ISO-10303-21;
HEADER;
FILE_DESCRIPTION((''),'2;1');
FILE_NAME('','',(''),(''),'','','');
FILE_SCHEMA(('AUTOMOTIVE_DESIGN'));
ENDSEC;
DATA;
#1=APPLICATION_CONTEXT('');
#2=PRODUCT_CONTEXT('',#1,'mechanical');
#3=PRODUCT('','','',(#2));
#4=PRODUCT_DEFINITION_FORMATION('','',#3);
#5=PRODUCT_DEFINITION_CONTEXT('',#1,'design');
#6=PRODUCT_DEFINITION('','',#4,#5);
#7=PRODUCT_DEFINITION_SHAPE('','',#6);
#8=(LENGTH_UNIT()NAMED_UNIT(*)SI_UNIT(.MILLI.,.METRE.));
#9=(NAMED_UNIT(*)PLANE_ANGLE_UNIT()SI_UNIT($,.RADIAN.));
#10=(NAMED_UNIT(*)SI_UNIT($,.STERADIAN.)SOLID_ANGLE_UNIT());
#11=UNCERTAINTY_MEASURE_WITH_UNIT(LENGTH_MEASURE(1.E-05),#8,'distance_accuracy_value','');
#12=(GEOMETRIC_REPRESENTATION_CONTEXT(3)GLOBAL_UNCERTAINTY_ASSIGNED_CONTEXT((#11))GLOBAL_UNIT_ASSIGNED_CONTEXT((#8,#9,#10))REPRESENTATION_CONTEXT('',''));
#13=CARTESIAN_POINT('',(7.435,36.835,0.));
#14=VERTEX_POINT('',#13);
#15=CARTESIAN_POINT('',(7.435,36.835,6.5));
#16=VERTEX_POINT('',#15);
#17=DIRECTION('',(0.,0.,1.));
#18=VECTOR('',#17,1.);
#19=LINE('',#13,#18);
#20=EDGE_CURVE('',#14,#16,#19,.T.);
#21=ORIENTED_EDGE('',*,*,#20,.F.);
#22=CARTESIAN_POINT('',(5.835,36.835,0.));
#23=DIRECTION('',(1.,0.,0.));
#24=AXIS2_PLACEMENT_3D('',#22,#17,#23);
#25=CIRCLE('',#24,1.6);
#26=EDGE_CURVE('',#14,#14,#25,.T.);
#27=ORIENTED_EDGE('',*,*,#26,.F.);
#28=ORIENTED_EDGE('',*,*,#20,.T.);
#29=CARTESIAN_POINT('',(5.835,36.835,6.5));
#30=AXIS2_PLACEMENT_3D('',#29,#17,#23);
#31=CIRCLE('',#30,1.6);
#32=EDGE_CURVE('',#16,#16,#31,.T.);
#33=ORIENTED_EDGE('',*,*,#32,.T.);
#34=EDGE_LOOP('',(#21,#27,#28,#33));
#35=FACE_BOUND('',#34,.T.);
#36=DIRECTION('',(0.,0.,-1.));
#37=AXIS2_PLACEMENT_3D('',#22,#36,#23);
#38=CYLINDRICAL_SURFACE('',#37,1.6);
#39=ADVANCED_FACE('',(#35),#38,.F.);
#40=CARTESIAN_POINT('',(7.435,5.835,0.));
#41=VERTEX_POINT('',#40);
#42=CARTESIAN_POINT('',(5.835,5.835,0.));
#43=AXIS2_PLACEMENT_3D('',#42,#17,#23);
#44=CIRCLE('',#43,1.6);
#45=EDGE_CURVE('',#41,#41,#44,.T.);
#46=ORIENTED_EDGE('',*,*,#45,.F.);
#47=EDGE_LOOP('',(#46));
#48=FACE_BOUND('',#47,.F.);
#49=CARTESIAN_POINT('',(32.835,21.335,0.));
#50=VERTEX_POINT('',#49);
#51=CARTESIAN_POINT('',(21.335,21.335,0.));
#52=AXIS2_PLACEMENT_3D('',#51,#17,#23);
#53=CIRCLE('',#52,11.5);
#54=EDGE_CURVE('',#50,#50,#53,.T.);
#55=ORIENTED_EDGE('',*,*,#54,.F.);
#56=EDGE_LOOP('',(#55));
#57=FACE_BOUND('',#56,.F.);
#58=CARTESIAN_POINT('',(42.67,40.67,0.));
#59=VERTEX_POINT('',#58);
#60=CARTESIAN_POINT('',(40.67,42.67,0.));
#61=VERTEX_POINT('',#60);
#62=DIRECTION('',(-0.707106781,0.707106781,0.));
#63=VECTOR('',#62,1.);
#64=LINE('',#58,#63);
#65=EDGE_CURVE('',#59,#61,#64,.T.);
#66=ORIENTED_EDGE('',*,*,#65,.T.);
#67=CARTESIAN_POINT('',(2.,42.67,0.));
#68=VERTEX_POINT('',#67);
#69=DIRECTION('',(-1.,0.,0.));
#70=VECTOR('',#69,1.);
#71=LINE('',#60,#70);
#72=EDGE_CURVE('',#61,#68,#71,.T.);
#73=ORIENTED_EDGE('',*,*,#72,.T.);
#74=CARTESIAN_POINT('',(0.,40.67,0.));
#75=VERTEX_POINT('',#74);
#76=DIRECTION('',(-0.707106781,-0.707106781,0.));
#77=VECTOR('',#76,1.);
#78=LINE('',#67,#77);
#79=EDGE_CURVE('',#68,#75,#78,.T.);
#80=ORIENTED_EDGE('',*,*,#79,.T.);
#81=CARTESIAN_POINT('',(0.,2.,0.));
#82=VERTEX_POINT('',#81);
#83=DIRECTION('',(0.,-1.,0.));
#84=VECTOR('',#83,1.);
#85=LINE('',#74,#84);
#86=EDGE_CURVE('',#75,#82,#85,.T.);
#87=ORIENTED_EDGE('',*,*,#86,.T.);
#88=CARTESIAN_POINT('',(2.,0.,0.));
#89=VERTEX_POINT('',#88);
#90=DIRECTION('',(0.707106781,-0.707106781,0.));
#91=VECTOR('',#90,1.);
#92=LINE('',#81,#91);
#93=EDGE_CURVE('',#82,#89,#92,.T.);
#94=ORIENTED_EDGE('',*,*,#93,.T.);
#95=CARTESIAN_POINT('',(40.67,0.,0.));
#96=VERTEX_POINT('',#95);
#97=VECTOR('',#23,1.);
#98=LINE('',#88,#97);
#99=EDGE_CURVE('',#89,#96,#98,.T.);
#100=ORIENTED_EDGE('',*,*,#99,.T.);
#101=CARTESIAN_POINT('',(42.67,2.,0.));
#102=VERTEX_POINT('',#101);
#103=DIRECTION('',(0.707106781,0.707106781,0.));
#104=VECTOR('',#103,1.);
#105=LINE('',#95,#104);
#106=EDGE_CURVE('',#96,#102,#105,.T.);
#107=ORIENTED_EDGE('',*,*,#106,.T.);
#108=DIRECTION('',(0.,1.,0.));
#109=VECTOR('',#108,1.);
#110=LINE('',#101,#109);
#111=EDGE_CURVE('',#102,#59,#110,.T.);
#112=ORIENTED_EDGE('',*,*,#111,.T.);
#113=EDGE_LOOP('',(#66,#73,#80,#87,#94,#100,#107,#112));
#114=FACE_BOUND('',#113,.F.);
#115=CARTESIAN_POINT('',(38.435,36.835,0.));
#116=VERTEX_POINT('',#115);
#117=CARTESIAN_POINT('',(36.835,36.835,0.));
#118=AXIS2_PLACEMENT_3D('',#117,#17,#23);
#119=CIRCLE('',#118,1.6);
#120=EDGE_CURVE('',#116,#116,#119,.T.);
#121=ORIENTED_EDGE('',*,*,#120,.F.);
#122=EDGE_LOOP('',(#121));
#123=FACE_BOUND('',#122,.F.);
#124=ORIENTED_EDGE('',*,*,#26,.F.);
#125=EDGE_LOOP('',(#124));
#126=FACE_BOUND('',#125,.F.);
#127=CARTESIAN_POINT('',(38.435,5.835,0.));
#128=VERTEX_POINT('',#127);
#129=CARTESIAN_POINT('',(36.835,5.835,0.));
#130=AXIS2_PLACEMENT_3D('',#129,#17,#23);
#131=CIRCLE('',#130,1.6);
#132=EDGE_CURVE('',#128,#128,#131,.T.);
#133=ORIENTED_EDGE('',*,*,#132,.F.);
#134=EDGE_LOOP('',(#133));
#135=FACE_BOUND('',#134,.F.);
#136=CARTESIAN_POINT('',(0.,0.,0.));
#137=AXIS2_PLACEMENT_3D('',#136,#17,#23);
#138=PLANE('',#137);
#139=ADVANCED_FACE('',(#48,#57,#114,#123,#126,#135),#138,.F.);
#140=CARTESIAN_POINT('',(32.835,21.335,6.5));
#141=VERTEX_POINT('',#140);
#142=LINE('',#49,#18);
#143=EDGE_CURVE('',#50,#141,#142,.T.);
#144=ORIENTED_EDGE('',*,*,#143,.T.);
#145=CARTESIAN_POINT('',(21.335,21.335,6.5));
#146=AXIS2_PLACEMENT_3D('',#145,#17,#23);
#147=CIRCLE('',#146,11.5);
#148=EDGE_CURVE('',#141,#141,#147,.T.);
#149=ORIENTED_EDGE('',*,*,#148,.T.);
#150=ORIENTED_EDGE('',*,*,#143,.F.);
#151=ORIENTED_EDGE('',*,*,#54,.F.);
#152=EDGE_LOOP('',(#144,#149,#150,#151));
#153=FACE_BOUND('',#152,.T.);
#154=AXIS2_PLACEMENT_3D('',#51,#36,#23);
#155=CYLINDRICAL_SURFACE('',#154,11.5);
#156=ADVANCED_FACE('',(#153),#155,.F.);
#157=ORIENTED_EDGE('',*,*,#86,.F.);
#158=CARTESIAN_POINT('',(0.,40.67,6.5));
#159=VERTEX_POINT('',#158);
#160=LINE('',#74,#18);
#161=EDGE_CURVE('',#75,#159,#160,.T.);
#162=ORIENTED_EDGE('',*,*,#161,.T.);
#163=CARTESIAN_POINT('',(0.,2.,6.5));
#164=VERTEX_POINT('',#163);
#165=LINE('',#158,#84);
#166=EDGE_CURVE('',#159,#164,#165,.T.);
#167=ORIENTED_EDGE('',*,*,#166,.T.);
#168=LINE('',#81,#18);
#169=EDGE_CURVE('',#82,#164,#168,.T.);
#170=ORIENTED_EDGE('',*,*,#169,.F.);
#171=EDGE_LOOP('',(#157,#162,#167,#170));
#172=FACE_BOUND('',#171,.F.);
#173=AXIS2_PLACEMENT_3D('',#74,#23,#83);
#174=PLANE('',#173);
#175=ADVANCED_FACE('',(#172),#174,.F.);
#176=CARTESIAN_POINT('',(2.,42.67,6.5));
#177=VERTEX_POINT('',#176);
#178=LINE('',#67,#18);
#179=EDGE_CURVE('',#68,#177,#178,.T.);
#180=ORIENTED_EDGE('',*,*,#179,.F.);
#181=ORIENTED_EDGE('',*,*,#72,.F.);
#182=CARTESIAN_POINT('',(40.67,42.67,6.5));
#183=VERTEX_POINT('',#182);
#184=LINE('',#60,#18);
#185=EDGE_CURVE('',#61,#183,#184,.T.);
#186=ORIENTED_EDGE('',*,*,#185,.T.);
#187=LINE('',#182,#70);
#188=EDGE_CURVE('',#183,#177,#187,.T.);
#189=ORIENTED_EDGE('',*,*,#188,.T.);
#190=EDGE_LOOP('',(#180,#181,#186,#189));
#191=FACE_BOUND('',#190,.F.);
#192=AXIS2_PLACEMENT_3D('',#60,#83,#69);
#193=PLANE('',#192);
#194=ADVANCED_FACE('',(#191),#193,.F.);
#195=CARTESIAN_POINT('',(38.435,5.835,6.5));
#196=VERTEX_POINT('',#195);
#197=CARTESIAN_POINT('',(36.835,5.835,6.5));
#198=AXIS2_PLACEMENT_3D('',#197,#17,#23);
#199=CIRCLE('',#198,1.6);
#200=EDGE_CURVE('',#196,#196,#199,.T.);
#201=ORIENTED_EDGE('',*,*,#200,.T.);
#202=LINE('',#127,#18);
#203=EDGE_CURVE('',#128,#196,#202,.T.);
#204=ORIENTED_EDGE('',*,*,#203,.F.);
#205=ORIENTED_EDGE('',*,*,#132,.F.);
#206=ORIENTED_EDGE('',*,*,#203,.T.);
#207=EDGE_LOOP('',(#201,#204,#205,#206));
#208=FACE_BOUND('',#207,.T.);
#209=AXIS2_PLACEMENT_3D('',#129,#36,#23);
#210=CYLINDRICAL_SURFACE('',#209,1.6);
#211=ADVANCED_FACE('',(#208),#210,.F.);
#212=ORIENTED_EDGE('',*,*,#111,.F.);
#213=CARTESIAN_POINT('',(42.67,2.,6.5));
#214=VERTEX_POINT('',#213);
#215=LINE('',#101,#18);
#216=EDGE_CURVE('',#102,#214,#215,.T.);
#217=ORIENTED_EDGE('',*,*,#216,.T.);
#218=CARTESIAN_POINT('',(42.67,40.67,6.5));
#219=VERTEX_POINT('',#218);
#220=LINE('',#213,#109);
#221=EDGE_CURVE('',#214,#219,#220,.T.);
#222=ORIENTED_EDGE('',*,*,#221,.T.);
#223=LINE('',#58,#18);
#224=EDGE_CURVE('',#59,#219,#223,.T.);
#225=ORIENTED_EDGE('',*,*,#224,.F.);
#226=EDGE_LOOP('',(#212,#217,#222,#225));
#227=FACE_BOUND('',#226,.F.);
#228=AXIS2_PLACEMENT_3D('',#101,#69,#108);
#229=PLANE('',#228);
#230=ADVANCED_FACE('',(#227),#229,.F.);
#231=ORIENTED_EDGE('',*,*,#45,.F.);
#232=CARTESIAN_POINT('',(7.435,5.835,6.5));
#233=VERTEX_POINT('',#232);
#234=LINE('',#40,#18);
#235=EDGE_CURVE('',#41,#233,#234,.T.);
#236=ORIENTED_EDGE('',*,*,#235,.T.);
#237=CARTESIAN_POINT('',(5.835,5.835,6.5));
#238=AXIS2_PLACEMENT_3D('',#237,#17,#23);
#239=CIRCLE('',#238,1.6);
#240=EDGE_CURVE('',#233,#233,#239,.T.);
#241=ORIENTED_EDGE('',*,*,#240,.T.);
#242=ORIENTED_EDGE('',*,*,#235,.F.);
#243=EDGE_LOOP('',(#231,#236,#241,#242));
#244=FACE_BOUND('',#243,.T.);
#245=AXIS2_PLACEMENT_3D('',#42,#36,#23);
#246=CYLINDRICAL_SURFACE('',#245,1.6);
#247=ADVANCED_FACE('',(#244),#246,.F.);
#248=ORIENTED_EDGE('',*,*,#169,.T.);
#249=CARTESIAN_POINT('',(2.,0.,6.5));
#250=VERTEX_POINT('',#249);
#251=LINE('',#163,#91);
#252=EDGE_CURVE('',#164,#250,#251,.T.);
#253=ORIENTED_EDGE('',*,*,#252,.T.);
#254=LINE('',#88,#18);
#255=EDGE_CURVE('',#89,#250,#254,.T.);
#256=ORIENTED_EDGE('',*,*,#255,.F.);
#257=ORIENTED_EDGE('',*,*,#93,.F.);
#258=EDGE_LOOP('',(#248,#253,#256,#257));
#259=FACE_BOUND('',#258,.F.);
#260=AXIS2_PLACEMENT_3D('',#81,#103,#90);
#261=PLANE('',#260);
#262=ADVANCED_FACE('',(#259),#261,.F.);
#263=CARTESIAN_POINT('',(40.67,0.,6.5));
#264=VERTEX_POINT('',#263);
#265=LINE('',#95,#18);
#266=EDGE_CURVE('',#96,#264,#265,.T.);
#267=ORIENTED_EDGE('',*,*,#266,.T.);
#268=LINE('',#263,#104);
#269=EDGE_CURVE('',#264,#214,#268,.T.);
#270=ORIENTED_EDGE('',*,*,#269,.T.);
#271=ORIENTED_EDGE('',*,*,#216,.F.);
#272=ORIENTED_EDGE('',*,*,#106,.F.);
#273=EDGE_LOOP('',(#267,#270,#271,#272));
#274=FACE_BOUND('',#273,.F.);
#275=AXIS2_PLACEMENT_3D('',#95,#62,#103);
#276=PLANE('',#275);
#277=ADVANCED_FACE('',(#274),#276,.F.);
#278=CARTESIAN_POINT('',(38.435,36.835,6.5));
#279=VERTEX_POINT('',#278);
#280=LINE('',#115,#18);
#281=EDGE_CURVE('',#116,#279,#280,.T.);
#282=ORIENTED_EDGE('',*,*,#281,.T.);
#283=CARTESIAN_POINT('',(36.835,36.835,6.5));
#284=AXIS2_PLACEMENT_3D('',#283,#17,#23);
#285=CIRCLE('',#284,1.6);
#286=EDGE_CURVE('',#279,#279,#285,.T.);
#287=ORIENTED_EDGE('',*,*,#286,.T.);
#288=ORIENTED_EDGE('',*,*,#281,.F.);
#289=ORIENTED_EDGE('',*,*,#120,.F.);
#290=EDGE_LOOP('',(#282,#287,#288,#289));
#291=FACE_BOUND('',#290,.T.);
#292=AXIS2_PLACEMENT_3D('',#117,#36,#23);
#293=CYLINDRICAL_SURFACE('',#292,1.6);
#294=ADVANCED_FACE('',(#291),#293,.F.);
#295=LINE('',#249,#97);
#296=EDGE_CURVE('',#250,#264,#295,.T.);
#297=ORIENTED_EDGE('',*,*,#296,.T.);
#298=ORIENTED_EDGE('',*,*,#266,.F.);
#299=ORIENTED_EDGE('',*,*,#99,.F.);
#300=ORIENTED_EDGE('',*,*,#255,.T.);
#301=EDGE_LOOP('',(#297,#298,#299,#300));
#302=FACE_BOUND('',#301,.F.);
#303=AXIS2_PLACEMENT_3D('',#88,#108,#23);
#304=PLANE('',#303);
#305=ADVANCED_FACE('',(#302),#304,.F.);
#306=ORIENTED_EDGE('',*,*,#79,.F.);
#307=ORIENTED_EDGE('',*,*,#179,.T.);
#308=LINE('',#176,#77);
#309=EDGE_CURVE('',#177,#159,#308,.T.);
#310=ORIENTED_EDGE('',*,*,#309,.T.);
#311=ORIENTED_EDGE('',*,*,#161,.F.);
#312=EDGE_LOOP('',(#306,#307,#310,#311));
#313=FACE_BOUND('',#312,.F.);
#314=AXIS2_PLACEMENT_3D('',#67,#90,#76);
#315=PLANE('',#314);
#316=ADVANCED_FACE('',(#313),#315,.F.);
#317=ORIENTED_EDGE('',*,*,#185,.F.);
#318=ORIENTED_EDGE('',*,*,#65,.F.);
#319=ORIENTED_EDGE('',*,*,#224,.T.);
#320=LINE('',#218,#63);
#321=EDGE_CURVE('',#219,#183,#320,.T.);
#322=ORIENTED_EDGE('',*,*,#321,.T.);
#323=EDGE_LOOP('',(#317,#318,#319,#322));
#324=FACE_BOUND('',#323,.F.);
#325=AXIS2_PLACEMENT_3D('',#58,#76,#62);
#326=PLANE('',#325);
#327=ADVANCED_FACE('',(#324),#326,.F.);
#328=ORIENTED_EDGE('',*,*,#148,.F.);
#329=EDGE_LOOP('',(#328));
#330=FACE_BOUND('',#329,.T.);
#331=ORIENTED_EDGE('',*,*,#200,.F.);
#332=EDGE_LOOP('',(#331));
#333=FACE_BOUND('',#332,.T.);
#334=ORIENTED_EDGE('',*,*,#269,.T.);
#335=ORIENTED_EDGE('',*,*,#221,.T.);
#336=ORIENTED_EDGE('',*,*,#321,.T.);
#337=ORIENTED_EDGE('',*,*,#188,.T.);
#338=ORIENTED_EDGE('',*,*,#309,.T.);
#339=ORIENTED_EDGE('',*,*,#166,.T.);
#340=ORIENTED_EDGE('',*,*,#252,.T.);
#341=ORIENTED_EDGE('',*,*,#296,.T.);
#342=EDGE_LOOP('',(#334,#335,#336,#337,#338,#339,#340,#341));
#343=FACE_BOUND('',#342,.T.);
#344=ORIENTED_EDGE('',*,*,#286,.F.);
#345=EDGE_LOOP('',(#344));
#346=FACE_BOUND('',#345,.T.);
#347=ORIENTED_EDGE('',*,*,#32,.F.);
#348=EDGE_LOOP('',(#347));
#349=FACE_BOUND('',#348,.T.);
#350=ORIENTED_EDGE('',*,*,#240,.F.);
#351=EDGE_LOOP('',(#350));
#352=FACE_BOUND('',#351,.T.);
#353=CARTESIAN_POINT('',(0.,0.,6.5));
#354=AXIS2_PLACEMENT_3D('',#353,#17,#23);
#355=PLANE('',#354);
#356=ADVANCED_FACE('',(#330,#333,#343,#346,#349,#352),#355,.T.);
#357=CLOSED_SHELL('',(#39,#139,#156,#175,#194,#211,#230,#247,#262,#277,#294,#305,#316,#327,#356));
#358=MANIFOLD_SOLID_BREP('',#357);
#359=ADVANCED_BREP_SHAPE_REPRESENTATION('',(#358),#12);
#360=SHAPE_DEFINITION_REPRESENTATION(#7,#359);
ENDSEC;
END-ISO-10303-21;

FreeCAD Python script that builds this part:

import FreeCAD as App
import Part
import Sketcher
from FreeCAD import Vector
Q = App.Units.Quantity

doc = App.newDocument("Part")
params = doc.addObject("Spreadsheet::Sheet", "Params")
for row, (alias, value) in enumerate([
    ("sketch1_diameter", "23 mm"),
    ("sketch1_diameter2", "3.2 mm"),
    ("pad1_length", "6.5 mm"),
], start=1):
    params.set(f"A{row}", alias)
    params.set(f"B{row}", "=" + value)
    params.setAlias(f"B{row}", alias)

body = doc.addObject("PartDesign::Body", "Body")

sketch1 = body.newObject("Sketcher::SketchObject", "Sketch")
sketch1.AttachmentSupport = (doc.getObject("XY_Plane"), [""])
sketch1.MapMode = "FlatFace"
sketch1.addGeometry(Part.LineSegment(Vector(0, 2, 0), Vector(2, 0, 0)), False)
sketch1.addGeometry(Part.LineSegment(Vector(2, 0, 0), Vector(40.7, 0, 0)), False)
sketch1.addGeometry(Part.LineSegment(Vector(40.7, 0, 0), Vector(42.7, 2, 0)), False)
sketch1.addGeometry(Part.LineSegment(Vector(42.7, 2, 0), Vector(42.7, 40.7, 0)), False)
sketch1.addGeometry(Part.LineSegment(Vector(42.7, 40.7, 0), Vector(40.7, 42.7, 0)), False)
sketch1.addGeometry(Part.LineSegment(Vector(40.7, 42.7, 0), Vector(2, 42.7, 0)), False)
sketch1.addGeometry(Part.LineSegment(Vector(2, 42.7, 0), Vector(0, 40.7, 0)), False)
sketch1.addGeometry(Part.LineSegment(Vector(0, 40.7, 0), Vector(0, 2, 0)), False)
sketch1.addGeometry(Part.Circle(Vector(5.8, 5.8, 0), Vector(0, 0, 1), 1.6), False)
sketch1.addGeometry(Part.Circle(Vector(36.8, 5.8, 0), Vector(0, 0, 1), 1.6), False)
sketch1.addGeometry(Part.Circle(Vector(5.8, 36.8, 0), Vector(0, 0, 1), 1.6), False)
sketch1.addGeometry(Part.Circle(Vector(21.3, 21.3, 0), Vector(0, 0, 1), 11.5), False)
sketch1.addGeometry(Part.Circle(Vector(36.8, 36.8, 0), Vector(0, 0, 1), 1.6), False)
sketch1.addConstraint(Sketcher.Constraint("Coincident", 0, 2, 1, 1))
sketch1.addConstraint(Sketcher.Constraint("Coincident", 1, 2, 2, 1))
sketch1.addConstraint(Sketcher.Constraint("Coincident", 2, 2, 3, 1))
sketch1.addConstraint(Sketcher.Constraint("Coincident", 3, 2, 4, 1))
sketch1.addConstraint(Sketcher.Constraint("Coincident", 4, 2, 5, 1))
sketch1.addConstraint(Sketcher.Constraint("Coincident", 5, 2, 6, 1))
sketch1.addConstraint(Sketcher.Constraint("Coincident", 6, 2, 7, 1))
sketch1.addConstraint(Sketcher.Constraint("Coincident", 7, 2, 0, 1))
sketch1.addConstraint(Sketcher.Constraint("Horizontal", 1))
sketch1.addConstraint(Sketcher.Constraint("Vertical", 3))
sketch1.addConstraint(Sketcher.Constraint("Horizontal", 5))
sketch1.addConstraint(Sketcher.Constraint("Vertical", 7))
sketch1.addConstraint(Sketcher.Constraint("Equal", 8, 9))
sketch1.addConstraint(Sketcher.Constraint("Equal", 9, 10))
sketch1.addConstraint(Sketcher.Constraint("Equal", 10, 12))
sketch1.addConstraint(Sketcher.Constraint("PointOnObject", 0, 2, -1))
sketch1.addConstraint(Sketcher.Constraint("PointOnObject", 6, 2, -2))
sketch1.addConstraint(Sketcher.Constraint("Perpendicular", 0, 2))
sketch1.addConstraint(Sketcher.Constraint("Perpendicular", 2, 4))
sketch1.addConstraint(Sketcher.Constraint("Perpendicular", 4, 6))
sketch1.addConstraint(Sketcher.Constraint("Horizontal", 8, 3, 9, 3))
sketch1.addConstraint(Sketcher.Constraint("Horizontal", 10, 3, 12, 3))
sketch1.addConstraint(Sketcher.Constraint("Horizontal", 3, 2, 6, 2))
sketch1.addConstraint(Sketcher.Constraint("Horizontal", 2, 2, 7, 2))
sketch1.addConstraint(Sketcher.Constraint("Vertical", 8, 3, 10, 3))
sketch1.addConstraint(Sketcher.Constraint("Vertical", 9, 3, 12, 3))
sketch1.addConstraint(Sketcher.Constraint("Vertical", 1, 2, 4, 2))
sketch1.addConstraint(Sketcher.Constraint("Vertical", 0, 2, 5, 2))
sketch1.addConstraint(Sketcher.Constraint("Equal", 5, 3))
sketch1.addConstraint(Sketcher.Constraint("Diameter", 11, Q("23 mm")))
sketch1.addConstraint(Sketcher.Constraint("Diameter", 8, Q("3.2 mm")))
sketch1.addConstraint(Sketcher.Constraint("DistanceX", -1, 1, 0, 2, Q("2 mm")))
sketch1.addConstraint(Sketcher.Constraint("DistanceX", 8, 3, 9, 3, Q("31 mm")))
sketch1.addConstraint(Sketcher.Constraint("DistanceY", 8, 3, 10, 3, Q("31 mm")))
sketch1.addConstraint(Sketcher.Constraint("DistanceX", -1, 1, 2, 2, Q("42.67 mm")))
sketch1.addConstraint(Sketcher.Constraint("DistanceX", 8, 3, 11, 3, Q("15.5 mm")))
sketch1.addConstraint(Sketcher.Constraint("DistanceY", 8, 3, 11, 3, Q("15.5 mm")))
sketch1.addConstraint(Sketcher.Constraint("DistanceX", -1, 1, 8, 3, Q("5.835 mm")))
sketch1.addConstraint(Sketcher.Constraint("DistanceY", -1, 1, 8, 3, Q("5.835 mm")))
sketch1.setExpression("Constraints[29]", "Params.sketch1_diameter")
sketch1.setExpression("Constraints[30]", "Params.sketch1_diameter2")
pad1 = body.newObject("PartDesign::Pad", "Pad")
pad1.Profile = sketch1
pad1.setExpression("Length", "Params.pad1_length")

doc.recompute()
